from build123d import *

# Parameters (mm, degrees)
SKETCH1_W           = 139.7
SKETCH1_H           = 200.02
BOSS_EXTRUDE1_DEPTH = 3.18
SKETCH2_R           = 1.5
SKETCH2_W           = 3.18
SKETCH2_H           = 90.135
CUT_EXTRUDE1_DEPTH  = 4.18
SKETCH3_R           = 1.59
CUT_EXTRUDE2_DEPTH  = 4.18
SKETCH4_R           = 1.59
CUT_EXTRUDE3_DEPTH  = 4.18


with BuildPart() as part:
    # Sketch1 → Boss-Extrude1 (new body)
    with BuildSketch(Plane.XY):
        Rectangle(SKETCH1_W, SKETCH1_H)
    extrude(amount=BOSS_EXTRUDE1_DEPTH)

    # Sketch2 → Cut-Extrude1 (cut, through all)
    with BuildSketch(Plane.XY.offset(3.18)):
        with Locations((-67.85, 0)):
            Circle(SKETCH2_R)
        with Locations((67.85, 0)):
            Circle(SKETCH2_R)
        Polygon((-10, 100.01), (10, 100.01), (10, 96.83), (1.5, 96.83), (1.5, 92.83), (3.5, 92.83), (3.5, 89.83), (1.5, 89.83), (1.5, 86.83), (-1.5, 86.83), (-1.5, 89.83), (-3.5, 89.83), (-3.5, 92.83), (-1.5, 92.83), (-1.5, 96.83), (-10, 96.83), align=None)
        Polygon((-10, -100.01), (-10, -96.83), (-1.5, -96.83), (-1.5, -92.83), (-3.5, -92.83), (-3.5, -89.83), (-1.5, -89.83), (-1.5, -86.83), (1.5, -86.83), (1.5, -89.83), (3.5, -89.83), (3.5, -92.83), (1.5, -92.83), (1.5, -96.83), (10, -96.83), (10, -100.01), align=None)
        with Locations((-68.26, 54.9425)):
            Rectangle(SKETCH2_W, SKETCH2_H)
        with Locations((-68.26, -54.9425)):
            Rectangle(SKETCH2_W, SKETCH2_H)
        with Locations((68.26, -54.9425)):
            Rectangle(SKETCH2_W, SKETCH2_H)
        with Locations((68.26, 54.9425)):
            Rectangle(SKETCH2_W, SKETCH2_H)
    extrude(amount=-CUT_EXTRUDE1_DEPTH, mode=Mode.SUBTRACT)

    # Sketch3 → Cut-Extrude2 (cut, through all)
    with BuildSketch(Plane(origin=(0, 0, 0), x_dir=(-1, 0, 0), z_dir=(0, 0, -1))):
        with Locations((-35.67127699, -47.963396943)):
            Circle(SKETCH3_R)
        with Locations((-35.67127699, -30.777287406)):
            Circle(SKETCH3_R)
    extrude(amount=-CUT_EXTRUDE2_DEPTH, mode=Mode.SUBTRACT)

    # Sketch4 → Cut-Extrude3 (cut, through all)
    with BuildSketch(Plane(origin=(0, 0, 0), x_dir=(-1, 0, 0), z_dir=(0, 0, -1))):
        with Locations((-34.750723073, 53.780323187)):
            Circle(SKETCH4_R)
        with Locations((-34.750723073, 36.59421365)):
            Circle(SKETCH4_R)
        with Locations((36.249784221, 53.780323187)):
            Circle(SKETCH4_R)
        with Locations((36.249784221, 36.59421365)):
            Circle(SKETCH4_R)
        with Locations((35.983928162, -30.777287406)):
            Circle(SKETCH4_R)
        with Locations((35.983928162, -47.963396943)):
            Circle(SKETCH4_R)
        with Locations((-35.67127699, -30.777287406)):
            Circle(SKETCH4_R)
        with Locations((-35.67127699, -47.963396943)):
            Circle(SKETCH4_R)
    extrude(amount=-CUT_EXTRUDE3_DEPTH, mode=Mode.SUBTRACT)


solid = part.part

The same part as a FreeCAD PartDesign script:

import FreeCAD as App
import Part
import Sketcher
from FreeCAD import Vector


def add_polygon(sketch, points):
    """Adds a closed chain of lines whose ends are joined by coincident constraints."""
    first, n = sketch.GeometryCount, len(points)
    for a, b in zip(points, points[1:] + points[:1]):
        sketch.addGeometry(Part.LineSegment(App.Vector(*a, 0), App.Vector(*b, 0)), False)
    for i in range(n):
        sketch.addConstraint(Sketcher.Constraint("Coincident", first + i, 2, first + (i + 1) % n, 1))

doc = App.newDocument("Part")
body = doc.addObject("PartDesign::Body", "Body")

sketch1 = doc.addObject("Sketcher::SketchObject", "Sketch")
body.addObject(sketch1)
sketch1.AttachmentSupport = (doc.XY_Plane, [""])
sketch1.MapMode = "FlatFace"
add_polygon(sketch1, [(-70, 100), (-70, -100), (70, -100), (70, 100)])
sketch1.addConstraint(Sketcher.Constraint("Vertical", 0))
sketch1.addConstraint(Sketcher.Constraint("Horizontal", 1))
sketch1.addConstraint(Sketcher.Constraint("Vertical", 2))
sketch1.addConstraint(Sketcher.Constraint("Horizontal", 3))
sketch1.addConstraint(Sketcher.Constraint("Symmetric", 0, 2, 2, 2, -1, 1))
sketch1.addConstraint(Sketcher.Constraint("DistanceX", 1, 1, 1, 2, 139.7))
sketch1.addConstraint(Sketcher.Constraint("DistanceY", 0, 2, 0, 1, 200.02))
pad1 = doc.addObject("PartDesign::Pad", "Pad")
body.addObject(pad1)
pad1.Profile = sketch1
pad1.Length = 3.18

sketch2 = doc.addObject("Sketcher::SketchObject", "Sketch001")
body.addObject(sketch2)
sketch2.AttachmentSupport = (doc.XY_Plane, [""])
sketch2.MapMode = "FlatFace"
sketch2.AttachmentOffset = App.Placement(Vector(0, 0, 3.18), App.Rotation())
sketch2.addGeometry(Part.Circle(Vector(-67.8, 0, 0), Vector(0, 0, 1), 1.5), False)
sketch2.addGeometry(Part.Circle(Vector(67.8, 0, 0), Vector(0, 0, 1), 1.5), False)
add_polygon(sketch2, [(10, 100), (-10, 100), (-10, 96.8), (-1.5, 96.8), (-1.5, 92.8), (-3.5, 92.8), (-3.5, 89.8), (-1.5, 89.8), (-1.5, 86.8), (1.5, 86.8), (1.5, 89.8), (3.5, 89.8), (3.5, 92.8), (1.5, 92.8), (1.5, 96.8), (10, 96.8)])
add_polygon(sketch2, [(-10, -96.8), (-10, -100), (10, -100), (10, -96.8), (1.5, -96.8), (1.5, -92.8), (3.5, -92.8), (3.5, -89.8), (1.5, -89.8), (1.5, -86.8), (-1.5, -86.8), (-1.5, -89.8), (-3.5, -89.8), (-3.5, -92.8), (-1.5, -92.8), (-1.5, -96.8)])
add_polygon(sketch2, [(-69.8, 100), (-69.8, 9.9), (-66.7, 9.9), (-66.7, 100)])
add_polygon(sketch2, [(-69.8, -9.9), (-69.8, -100), (-66.7, -100), (-66.7, -9.9)])
add_polygon(sketch2, [(66.7, -9.9), (66.7, -100), (69.8, -100), (69.8, -9.9)])
add_polygon(sketch2, [(66.7, 100), (66.7, 9.9), (69.8, 9.9), (69.8, 100)])
sketch2.addConstraint(Sketcher.Constraint("Horizontal", 2))
sketch2.addConstraint(Sketcher.Constraint("Vertical", 3))
sketch2.addConstraint(Sketcher.Constraint("Horizontal", 4))
sketch2.addConstraint(Sketcher.Constraint("Vertical", 5))
sketch2.addConstraint(Sketcher.Constraint("Horizontal", 6))
sketch2.addConstraint(Sketcher.Constraint("Vertical", 7))
sketch2.addConstraint(Sketcher.Constraint("Horizontal", 8))
sketch2.addConstraint(Sketcher.Constraint("Vertical", 9))
sketch2.addConstraint(Sketcher.Constraint("Horizontal", 10))
sketch2.addConstraint(Sketcher.Constraint("Vertical", 11))
sketch2.addConstraint(Sketcher.Constraint("Horizontal", 12))
sketch2.addConstraint(Sketcher.Constraint("Vertical", 13))
sketch2.addConstraint(Sketcher.Constraint("Horizontal", 14))
sketch2.addConstraint(Sketcher.Constraint("Vertical", 15))
sketch2.addConstraint(Sketcher.Constraint("Horizontal", 16))
sketch2.addConstraint(Sketcher.Constraint("Vertical", 17))
sketch2.addConstraint(Sketcher.Constraint("Vertical", 18))
sketch2.addConstraint(Sketcher.Constraint("Horizontal", 19))
sketch2.addConstraint(Sketcher.Constraint("Vertical", 20))
sketch2.addConstraint(Sketcher.Constraint("Horizontal", 21))
sketch2.addConstraint(Sketcher.Constraint("Vertical", 22))
sketch2.addConstraint(Sketcher.Constraint("Horizontal", 23))
sketch2.addConstraint(Sketcher.Constraint("Vertical", 24))
sketch2.addConstraint(Sketcher.Constraint("Horizontal", 25))
sketch2.addConstraint(Sketcher.Constraint("Vertical", 26))
sketch2.addConstraint(Sketcher.Constraint("Horizontal", 27))
sketch2.addConstraint(Sketcher.Constraint("Vertical", 28))
sketch2.addConstraint(Sketcher.Constraint("Horizontal", 29))
sketch2.addConstraint(Sketcher.Constraint("Vertical", 30))
sketch2.addConstraint(Sketcher.Constraint("Horizontal", 31))
sketch2.addConstraint(Sketcher.Constraint("Vertical", 32))
sketch2.addConstraint(Sketcher.Constraint("Horizontal", 33))
sketch2.addConstraint(Sketcher.Constraint("Vertical", 34))
sketch2.addConstraint(Sketcher.Constraint("Horizontal", 35))
sketch2.addConstraint(Sketcher.Constraint("Vertical", 36))
sketch2.addConstraint(Sketcher.Constraint("Horizontal", 37))
sketch2.addConstraint(Sketcher.Constraint("Vertical", 38))
sketch2.addConstraint(Sketcher.Constraint("Horizontal", 39))
sketch2.addConstraint(Sketcher.Constraint("Vertical", 40))
sketch2.addConstraint(Sketcher.Constraint("Horizontal", 41))
sketch2.addConstraint(Sketcher.Constraint("Vertical", 42))
sketch2.addConstraint(Sketcher.Constraint("Horizontal", 43))
sketch2.addConstraint(Sketcher.Constraint("Vertical", 44))
sketch2.addConstraint(Sketcher.Constraint("Horizontal", 45))
sketch2.addConstraint(Sketcher.Constraint("Vertical", 46))
sketch2.addConstraint(Sketcher.Constraint("Horizontal", 47))
sketch2.addConstraint(Sketcher.Constraint("Vertical", 48))
sketch2.addConstraint(Sketcher.Constraint("Horizontal", 49))
sketch2.addConstraint(Sketcher.Constraint("Equal", 0, 1))
sketch2.addConstraint(Sketcher.Constraint("Symmetric", 0, 3, 1, 3, -1, 1))
sketch2.addConstraint(Sketcher.Constraint("Symmetric", 17, 2, 18, 2, -1, 1))
sketch2.addConstraint(Sketcher.Constraint("Symmetric", 3, 2, 20, 2, -1, 1))
sketch2.addConstraint(Sketcher.Constraint("Symmetric", 5, 2, 22, 2, -1, 1))
sketch2.addConstraint(Sketcher.Constraint("Symmetric", 7, 2, 24, 2, -1, 1))
sketch2.addConstraint(Sketcher.Constraint("Symmetric", 9, 2, 26, 2, -1, 1))
sketch2.addConstraint(Sketcher.Constraint("Symmetric", 11, 2, 28, 2, -1, 1))
sketch2.addConstraint(Sketcher.Constraint("Symmetric", 13, 2, 30, 2, -1, 1))
sketch2.addConstraint(Sketcher.Constraint("Symmetric", 15, 2, 32, 2, -1, 1))
sketch2.addConstraint(Sketcher.Constraint("Symmetric", 36, 2, 42, 2, -1, 1))
sketch2.addConstraint(Sketcher.Constraint("Symmetric", 34, 2, 44, 2, -1, 1))
sketch2.addConstraint(Sketcher.Constraint("Symmetric", 40, 2, 46, 2, -1, 1))
sketch2.addConstraint(Sketcher.Constraint("Symmetric", 38, 2, 48, 2, -1, 1))
sketch2.addConstraint(Sketcher.Constraint("Symmetric", 8, 2, 11, 2, -2))
sketch2.addConstraint(Sketcher.Constraint("Symmetric", 6, 2, 13, 2, -2))
sketch2.addConstraint(Sketcher.Constraint("Symmetric", 4, 2, 15, 2, -2))
sketch2.addConstraint(Sketcher.Constraint("Symmetric", 39, 2, 42, 2, -2))
sketch2.addConstraint(Sketcher.Constraint("Symmetric", 41, 2, 44, 2, -2))
sketch2.addConstraint(Sketcher.Constraint("PointOnObject", 0, 3, -1))
sketch2.addConstraint(Sketcher.Constraint("Horizontal", 17, 2, 36, 2))
sketch2.addConstraint(Sketcher.Constraint("Vertical", 5, 2, 8, 2))
sketch2.addConstraint(Sketcher.Constraint("Vertical", 3, 2, 18, 2))
sketch2.addConstraint(Sketcher.Constraint("Equal", 49, 3))
sketch2.addConstraint(Sketcher.Constraint("Equal", 27, 7))
sketch2.addConstraint(Sketcher.Constraint("Equal", 7, 9))
sketch2.addConstraint(Sketcher.Constraint("Diameter", 0, 3.0))
sketch2.addConstraint(Sketcher.Constraint("DistanceX", 2, 2, 2, 1, 20.0))
sketch2.addConstraint(Sketcher.Constraint("DistanceX", 6, 2, 6, 1, 2.0))
sketch2.addConstraint(Sketcher.Constraint("DistanceX", 10, 1, 10, 2, 3.0))
sketch2.addConstraint(Sketcher.Constraint("DistanceY", 5, 2, 5, 1, 4.0))
sketch2.addConstraint(Sketcher.Constraint("DistanceX", 34, 2, 0, 3, 2.0))
sketch2.addConstraint(Sketcher.Constraint("DistanceX", 35, 1, 35, 2, 3.18))
sketch2.addConstraint(Sketcher.Constraint("DistanceX", 0, 3, 1, 3, 135.7))
sketch2.addConstraint(Sketcher.Constraint("DistanceY", 34, 2, 34, 1, 90.135))
sketch2.addConstraint(Sketcher.Constraint("DistanceY", -1, 1, 2, 2, 100.01))
pocket1 = doc.addObject("PartDesign::Pocket", "Pocket")
body.addObject(pocket1)
pocket1.Profile = sketch2
pocket1.Type = "ThroughAll"

sketch3 = doc.addObject("Sketcher::SketchObject", "Sketch002")
body.addObject(sketch3)
sketch3.AttachmentSupport = (doc.XY_Plane, [""])
sketch3.MapMode = "FlatFace"
sketch3.addGeometry(Part.Circle(Vector(35.7, -48, 0), Vector(0, 0, 1), 1.6), False)
sketch3.addGeometry(Part.Circle(Vector(35.7, -30.8, 0), Vector(0, 0, 1), 1.6), False)
sketch3.addConstraint(Sketcher.Constraint("Equal", 0, 1))
sketch3.addConstraint(Sketcher.Constraint("Vertical", 0, 3, 1, 3))
sketch3.addConstraint(Sketcher.Constraint("Diameter", 0, 3.18))
sketch3.addConstraint(Sketcher.Constraint("DistanceY", 0, 3, 1, 3, 17.18611))
sketch3.addConstraint(Sketcher.Constraint("DistanceX", -1, 1, 0, 3, 35.671277))
sketch3.addConstraint(Sketcher.Constraint("DistanceY", 0, 3, -1, 1, 47.963397))
pocket2 = doc.addObject("PartDesign::Pocket", "Pocket001")
body.addObject(pocket2)
pocket2.Profile = sketch3
pocket2.Type = "ThroughAll"
pocket2.Reversed = True

sketch4 = doc.addObject("Sketcher::SketchObject", "Sketch003")
body.addObject(sketch4)
sketch4.AttachmentSupport = (doc.XY_Plane, [""])
sketch4.MapMode = "FlatFace"
sketch4.addGeometry(Part.Circle(Vector(34.8, 53.8, 0), Vector(0, 0, 1), 1.6), False)
sketch4.addGeometry(Part.Circle(Vector(34.8, 36.6, 0), Vector(0, 0, 1), 1.6), False)
sketch4.addGeometry(Part.Circle(Vector(-36.2, 53.8, 0), Vector(0, 0, 1), 1.6), False)
sketch4.addGeometry(Part.Circle(Vector(-36.2, 36.6, 0), Vector(0, 0, 1), 1.6), False)
sketch4.addGeometry(Part.Circle(Vector(-36, -30.8, 0), Vector(0, 0, 1), 1.6), False)
sketch4.addGeometry(Part.Circle(Vector(-36, -48, 0), Vector(0, 0, 1), 1.6), False)
sketch4.addGeometry(Part.Circle(Vector(35.7, -30.8, 0), Vector(0, 0, 1), 1.6), False)
sketch4.addGeometry(Part.Circle(Vector(35.7, -48, 0), Vector(0, 0, 1), 1.6), False)
sketch4.addConstraint(Sketcher.Constraint("Equal", 0, 1))
sketch4.addConstraint(Sketcher.Constraint("Equal", 1, 2))
sketch4.addConstraint(Sketcher.Constraint("Equal", 2, 3))
sketch4.addConstraint(Sketcher.Constraint("Equal", 3, 4))
sketch4.addConstraint(Sketcher.Constraint("Equal", 4, 5))
sketch4.addConstraint(Sketcher.Constraint("Equal", 5, 6))
sketch4.addConstraint(Sketcher.Constraint("Equal", 6, 7))
sketch4.addConstraint(Sketcher.Constraint("Horizontal", 0, 3, 2, 3))
sketch4.addConstraint(Sketcher.Constraint("Horizontal", 1, 3, 3, 3))
sketch4.addConstraint(Sketcher.Constraint("Horizontal", 4, 3, 6, 3))
sketch4.addConstraint(Sketcher.Constraint("Horizontal", 5, 3, 7, 3))
sketch4.addConstraint(Sketcher.Constraint("Vertical", 0, 3, 1, 3))
sketch4.addConstraint(Sketcher.Constraint("Vertical", 2, 3, 3, 3))
sketch4.addConstraint(Sketcher.Constraint("Vertical", 4, 3, 5, 3))
sketch4.addConstraint(Sketcher.Constraint("Vertical", 6, 3, 7, 3))
sketch4.addConstraint(Sketcher.Constraint("Diameter", 0, 3.18))
sketch4.addConstraint(Sketcher.Constraint("DistanceY", 4, 3, 3, 3, 67.371501))
sketch4.addConstraint(Sketcher.Constraint("DistanceX", 4, 3, -1, 1, 35.983928))
sketch4.addConstraint(Sketcher.Constraint("DistanceY", 1, 3, 0, 3, 17.18611))
sketch4.addConstraint(Sketcher.Constraint("DistanceX", 4, 3, 1, 3, 70.734651))
sketch4.addConstraint(Sketcher.Constraint("DistanceY", 5, 3, 4, 3, 17.18611))
sketch4.addConstraint(Sketcher.Constraint("DistanceX", 3, 3, 6, 3, 71.921061))
sketch4.addConstraint(Sketcher.Constraint("DistanceY", -1, 1, 0, 3, 53.780323))
sketch4.addConstraint(Sketcher.Constraint("DistanceX", 2, 3, -1, 1, 36.249784))
pocket3 = doc.addObject("PartDesign::Pocket", "Pocket002")
body.addObject(pocket3)
pocket3.Profile = sketch4
pocket3.Type = "ThroughAll"
pocket3.Reversed = True

doc.recompute()
